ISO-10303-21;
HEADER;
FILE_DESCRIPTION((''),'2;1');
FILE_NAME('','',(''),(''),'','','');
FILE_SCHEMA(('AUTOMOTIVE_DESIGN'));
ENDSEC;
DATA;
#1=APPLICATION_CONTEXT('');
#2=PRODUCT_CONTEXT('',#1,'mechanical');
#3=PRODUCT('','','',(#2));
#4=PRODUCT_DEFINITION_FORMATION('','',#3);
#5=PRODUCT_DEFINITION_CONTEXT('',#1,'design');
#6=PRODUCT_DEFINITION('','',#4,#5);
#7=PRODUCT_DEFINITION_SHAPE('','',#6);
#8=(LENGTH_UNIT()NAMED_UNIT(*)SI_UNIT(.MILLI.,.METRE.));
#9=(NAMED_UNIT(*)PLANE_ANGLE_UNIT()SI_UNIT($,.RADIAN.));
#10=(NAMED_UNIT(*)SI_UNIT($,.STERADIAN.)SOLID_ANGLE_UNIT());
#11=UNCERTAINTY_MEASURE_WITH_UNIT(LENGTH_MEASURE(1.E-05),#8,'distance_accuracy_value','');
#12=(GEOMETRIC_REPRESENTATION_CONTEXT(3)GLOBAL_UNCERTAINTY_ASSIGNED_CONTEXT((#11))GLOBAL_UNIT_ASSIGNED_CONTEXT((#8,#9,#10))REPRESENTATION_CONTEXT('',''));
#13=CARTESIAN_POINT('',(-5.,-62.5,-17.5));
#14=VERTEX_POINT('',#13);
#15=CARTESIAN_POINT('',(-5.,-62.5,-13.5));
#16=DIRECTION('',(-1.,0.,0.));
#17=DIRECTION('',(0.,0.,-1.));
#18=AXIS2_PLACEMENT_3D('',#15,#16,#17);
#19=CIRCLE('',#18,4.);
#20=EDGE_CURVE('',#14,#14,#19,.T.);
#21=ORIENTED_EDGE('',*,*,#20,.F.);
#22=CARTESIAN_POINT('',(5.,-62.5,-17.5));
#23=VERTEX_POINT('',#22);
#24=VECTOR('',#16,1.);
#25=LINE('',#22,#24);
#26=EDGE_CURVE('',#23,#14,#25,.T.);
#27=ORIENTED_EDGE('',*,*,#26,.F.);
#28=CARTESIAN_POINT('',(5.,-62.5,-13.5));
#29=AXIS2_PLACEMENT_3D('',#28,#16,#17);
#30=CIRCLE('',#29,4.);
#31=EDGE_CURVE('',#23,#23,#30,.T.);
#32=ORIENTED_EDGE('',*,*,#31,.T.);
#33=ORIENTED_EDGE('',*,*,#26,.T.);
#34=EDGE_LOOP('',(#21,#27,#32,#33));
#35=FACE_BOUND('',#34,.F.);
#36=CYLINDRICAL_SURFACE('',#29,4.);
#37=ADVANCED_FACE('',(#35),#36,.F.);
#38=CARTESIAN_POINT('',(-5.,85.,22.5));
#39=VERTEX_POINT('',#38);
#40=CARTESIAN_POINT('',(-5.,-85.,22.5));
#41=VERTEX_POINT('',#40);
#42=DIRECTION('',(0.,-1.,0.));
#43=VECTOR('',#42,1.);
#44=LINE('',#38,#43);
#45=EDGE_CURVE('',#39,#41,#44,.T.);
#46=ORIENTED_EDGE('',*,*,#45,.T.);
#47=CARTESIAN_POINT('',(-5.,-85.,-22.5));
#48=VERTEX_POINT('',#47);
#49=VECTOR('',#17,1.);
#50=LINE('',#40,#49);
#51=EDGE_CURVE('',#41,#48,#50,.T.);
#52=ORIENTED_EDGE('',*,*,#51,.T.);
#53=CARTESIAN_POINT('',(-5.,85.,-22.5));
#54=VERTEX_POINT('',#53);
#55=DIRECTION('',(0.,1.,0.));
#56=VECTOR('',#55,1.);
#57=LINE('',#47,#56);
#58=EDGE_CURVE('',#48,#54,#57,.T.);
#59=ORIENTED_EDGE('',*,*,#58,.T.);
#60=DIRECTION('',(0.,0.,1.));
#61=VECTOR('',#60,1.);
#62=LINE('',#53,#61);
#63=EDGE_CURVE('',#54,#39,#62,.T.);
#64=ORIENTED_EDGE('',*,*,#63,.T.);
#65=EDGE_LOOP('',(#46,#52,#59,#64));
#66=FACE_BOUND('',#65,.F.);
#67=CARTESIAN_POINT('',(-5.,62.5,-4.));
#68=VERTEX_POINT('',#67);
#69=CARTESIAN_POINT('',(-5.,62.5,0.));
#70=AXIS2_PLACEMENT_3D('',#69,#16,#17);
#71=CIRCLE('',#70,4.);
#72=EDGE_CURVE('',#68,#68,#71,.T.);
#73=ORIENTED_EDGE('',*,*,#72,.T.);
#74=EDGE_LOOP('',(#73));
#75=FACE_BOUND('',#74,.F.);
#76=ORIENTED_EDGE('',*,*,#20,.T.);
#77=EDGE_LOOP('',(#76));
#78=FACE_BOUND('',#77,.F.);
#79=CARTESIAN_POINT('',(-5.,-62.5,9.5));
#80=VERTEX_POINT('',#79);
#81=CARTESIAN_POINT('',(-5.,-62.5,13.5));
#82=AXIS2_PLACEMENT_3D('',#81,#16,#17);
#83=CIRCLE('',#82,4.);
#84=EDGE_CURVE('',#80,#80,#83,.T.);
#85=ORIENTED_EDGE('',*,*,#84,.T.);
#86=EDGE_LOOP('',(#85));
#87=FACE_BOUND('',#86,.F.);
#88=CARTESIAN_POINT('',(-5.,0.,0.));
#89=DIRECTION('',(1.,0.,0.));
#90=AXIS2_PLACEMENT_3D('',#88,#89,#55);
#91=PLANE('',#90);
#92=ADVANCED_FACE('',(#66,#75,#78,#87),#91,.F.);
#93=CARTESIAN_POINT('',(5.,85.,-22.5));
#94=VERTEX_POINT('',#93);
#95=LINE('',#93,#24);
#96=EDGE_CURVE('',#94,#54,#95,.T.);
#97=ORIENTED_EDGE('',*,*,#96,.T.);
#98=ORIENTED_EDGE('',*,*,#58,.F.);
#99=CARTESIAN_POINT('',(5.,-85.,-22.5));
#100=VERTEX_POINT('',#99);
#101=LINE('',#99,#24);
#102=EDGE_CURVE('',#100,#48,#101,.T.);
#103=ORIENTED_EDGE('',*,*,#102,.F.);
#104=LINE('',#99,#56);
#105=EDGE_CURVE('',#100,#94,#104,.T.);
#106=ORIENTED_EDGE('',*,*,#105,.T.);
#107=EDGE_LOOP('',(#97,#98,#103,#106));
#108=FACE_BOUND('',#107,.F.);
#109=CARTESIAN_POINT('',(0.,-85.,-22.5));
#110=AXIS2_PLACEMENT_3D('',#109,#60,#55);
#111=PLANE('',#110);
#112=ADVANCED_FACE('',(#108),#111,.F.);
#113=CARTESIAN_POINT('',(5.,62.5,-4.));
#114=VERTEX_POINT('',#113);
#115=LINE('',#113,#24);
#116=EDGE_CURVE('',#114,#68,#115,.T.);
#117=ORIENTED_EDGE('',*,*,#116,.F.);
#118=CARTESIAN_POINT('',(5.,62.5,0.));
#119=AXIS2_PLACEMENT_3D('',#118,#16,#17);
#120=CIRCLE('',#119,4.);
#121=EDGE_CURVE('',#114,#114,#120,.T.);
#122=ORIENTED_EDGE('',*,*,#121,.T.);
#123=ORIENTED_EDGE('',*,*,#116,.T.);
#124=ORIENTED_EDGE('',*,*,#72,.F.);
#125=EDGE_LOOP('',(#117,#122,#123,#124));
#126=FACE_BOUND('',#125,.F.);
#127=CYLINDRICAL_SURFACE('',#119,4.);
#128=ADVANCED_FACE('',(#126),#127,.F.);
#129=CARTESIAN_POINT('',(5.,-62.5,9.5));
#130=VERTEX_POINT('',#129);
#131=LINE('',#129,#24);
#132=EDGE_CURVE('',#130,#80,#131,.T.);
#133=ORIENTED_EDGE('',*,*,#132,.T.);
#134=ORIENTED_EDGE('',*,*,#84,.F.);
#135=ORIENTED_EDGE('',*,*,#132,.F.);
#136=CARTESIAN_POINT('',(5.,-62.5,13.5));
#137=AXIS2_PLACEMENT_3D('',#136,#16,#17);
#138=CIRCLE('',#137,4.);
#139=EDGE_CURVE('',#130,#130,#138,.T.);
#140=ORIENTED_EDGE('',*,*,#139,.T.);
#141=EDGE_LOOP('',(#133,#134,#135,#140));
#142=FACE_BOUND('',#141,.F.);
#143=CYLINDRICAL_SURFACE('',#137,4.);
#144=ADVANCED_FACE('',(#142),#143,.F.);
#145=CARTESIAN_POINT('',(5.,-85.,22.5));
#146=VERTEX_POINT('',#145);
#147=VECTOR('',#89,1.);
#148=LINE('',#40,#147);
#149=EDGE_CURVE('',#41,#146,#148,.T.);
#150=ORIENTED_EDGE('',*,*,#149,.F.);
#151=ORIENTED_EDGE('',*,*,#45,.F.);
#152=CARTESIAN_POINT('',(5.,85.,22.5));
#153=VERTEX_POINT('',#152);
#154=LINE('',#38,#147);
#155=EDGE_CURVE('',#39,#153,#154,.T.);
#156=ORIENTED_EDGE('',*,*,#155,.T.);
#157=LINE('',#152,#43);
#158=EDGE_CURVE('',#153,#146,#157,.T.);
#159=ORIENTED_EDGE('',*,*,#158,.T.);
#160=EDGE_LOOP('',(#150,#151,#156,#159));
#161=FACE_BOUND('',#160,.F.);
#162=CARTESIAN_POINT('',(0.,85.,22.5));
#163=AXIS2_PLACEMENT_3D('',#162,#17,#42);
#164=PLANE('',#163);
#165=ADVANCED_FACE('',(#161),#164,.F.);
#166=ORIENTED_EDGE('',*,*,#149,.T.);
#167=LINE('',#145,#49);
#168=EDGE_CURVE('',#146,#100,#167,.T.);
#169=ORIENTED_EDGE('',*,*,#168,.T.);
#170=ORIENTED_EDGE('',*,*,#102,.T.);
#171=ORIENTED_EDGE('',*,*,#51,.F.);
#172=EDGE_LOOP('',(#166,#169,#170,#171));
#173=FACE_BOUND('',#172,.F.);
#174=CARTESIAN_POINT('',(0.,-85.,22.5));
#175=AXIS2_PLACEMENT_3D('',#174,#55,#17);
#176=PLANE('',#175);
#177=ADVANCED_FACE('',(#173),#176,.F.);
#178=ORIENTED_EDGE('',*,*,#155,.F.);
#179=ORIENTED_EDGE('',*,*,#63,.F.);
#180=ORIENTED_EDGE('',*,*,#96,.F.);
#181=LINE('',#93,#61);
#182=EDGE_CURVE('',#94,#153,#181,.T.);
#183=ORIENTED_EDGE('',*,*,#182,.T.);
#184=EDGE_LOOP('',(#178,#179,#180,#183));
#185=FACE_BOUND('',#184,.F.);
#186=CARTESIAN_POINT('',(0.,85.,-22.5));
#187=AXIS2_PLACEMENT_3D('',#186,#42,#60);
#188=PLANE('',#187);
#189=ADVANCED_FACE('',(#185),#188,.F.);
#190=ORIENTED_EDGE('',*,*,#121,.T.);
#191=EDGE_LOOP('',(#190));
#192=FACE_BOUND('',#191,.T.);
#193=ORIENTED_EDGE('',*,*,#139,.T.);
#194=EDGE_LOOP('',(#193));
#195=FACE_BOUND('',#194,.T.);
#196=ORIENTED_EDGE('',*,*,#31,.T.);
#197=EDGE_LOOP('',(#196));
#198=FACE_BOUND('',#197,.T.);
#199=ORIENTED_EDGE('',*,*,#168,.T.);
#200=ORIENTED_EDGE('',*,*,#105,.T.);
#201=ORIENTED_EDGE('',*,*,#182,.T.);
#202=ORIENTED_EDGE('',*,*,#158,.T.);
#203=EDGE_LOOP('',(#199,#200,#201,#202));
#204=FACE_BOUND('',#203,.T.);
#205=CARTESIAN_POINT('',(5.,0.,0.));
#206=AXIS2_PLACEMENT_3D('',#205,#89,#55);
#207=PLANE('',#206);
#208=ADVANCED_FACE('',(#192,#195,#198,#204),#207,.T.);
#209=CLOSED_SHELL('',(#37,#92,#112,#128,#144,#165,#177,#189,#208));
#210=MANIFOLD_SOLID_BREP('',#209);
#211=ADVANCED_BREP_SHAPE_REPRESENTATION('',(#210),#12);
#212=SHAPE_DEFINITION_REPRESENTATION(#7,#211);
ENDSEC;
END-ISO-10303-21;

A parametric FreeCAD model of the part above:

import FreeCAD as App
import Part
import Sketcher
from FreeCAD import Vector
Q = App.Units.Quantity


def add_polygon(sketch, points):
    """Adds a closed chain of lines whose ends are joined by coincident constraints."""
    first, n = sketch.GeometryCount, len(points)
    for a, b in zip(points, points[1:] + points[:1]):
        sketch.addGeometry(Part.LineSegment(App.Vector(*a, 0), App.Vector(*b, 0)), False)
    for i in range(n):
        sketch.addConstraint(Sketcher.Constraint("Coincident", first + i, 2, first + (i + 1) % n, 1))

doc = App.newDocument("Part")
body = doc.addObject("PartDesign::Body", "Body")

# Sketch on YZ plane
sketch1 = doc.addObject("Sketcher::SketchObject", "Sketch")
body.addObject(sketch1)
sketch1.AttachmentSupport = (doc.YZ_Plane, [""])
sketch1.MapMode = "FlatFace"
add_polygon(sketch1, [(85, -22.5), (85, 22.5), (-85, 22.5), (-85, -22.5)])  # lines 0-3
sketch1.addConstraint([
    Sketcher.Constraint("Vertical", 0),
    Sketcher.Constraint("Horizontal", 1),
    Sketcher.Constraint("Vertical", 2),
    Sketcher.Constraint("Horizontal", 3),
    Sketcher.Constraint("Symmetric", 0, 2, 2, 2, -1, 1),
    Sketcher.Constraint("DistanceX", 1, 2, 1, 1, Q("170 mm")),
    Sketcher.Constraint("DistanceY", 0, 1, 0, 2, Q("45 mm")),
])
pad1 = doc.addObject("PartDesign::Pad", "Pad")
body.addObject(pad1)
pad1.Profile = sketch1
pad1.Length = 10
pad1.Midplane = True

# Sketch on YZ plane
sketch2 = doc.addObject("Sketcher::SketchObject", "Sketch001")
body.addObject(sketch2)
sketch2.AttachmentSupport = (doc.YZ_Plane, [""])
sketch2.MapMode = "FlatFace"
sketch2.AttachmentOffset = App.Placement(Vector(0, 0, 5), App.Rotation())
sketch2.addGeometry([
    Part.Circle(Vector(-62.5, 13.5, 0), Vector(0, 0, 1), 4),
    Part.Circle(Vector(-62.5, -13.5, 0), Vector(0, 0, 1), 4),
], False)
sketch2.addConstraint([
    Sketcher.Constraint("Equal", 0, 1),
    Sketcher.Constraint("Symmetric", 0, 3, 1, 3, -1),
    Sketcher.Constraint("Diameter", 0, Q("8 mm")),
    Sketcher.Constraint("DistanceY", 1, 3, 0, 3, Q("27 mm")),
    Sketcher.Constraint("DistanceX", 0, 3, -1, 1, Q("62.5 mm")),
])
doc.recompute()
hole = doc.addObject("PartDesign::Hole", "Hole")
body.addObject(hole)
hole.Profile = sketch2
hole.ThreadType = "None"
hole.Diameter = 8
hole.DepthType = "ThroughAll"

# Sketch on YZ plane
sketch3 = doc.addObject("Sketcher::SketchObject", "Sketch002")
body.addObject(sketch3)
sketch3.AttachmentSupport = (doc.YZ_Plane, [""])
sketch3.MapMode = "FlatFace"
sketch3.AttachmentOffset = App.Placement(Vector(0, 0, 5), App.Rotation())
sketch3.addGeometry(Part.Circle(Vector(62.5, 0, 0), Vector(0, 0, 1), 4), False)
sketch3.addConstraint([
    Sketcher.Constraint("PointOnObject", 0, 3, -1),
    Sketcher.Constraint("Diameter", 0, Q("8 mm")),
    Sketcher.Constraint("DistanceX", -1, 1, 0, 3, Q("62.5 mm")),
])
doc.recompute()
hole2 = doc.addObject("PartDesign::Hole", "Hole001")
body.addObject(hole2)
hole2.Profile = sketch3
hole2.ThreadType = "None"
hole2.Diameter = 8
hole2.DepthType = "ThroughAll"

doc.recompute()
